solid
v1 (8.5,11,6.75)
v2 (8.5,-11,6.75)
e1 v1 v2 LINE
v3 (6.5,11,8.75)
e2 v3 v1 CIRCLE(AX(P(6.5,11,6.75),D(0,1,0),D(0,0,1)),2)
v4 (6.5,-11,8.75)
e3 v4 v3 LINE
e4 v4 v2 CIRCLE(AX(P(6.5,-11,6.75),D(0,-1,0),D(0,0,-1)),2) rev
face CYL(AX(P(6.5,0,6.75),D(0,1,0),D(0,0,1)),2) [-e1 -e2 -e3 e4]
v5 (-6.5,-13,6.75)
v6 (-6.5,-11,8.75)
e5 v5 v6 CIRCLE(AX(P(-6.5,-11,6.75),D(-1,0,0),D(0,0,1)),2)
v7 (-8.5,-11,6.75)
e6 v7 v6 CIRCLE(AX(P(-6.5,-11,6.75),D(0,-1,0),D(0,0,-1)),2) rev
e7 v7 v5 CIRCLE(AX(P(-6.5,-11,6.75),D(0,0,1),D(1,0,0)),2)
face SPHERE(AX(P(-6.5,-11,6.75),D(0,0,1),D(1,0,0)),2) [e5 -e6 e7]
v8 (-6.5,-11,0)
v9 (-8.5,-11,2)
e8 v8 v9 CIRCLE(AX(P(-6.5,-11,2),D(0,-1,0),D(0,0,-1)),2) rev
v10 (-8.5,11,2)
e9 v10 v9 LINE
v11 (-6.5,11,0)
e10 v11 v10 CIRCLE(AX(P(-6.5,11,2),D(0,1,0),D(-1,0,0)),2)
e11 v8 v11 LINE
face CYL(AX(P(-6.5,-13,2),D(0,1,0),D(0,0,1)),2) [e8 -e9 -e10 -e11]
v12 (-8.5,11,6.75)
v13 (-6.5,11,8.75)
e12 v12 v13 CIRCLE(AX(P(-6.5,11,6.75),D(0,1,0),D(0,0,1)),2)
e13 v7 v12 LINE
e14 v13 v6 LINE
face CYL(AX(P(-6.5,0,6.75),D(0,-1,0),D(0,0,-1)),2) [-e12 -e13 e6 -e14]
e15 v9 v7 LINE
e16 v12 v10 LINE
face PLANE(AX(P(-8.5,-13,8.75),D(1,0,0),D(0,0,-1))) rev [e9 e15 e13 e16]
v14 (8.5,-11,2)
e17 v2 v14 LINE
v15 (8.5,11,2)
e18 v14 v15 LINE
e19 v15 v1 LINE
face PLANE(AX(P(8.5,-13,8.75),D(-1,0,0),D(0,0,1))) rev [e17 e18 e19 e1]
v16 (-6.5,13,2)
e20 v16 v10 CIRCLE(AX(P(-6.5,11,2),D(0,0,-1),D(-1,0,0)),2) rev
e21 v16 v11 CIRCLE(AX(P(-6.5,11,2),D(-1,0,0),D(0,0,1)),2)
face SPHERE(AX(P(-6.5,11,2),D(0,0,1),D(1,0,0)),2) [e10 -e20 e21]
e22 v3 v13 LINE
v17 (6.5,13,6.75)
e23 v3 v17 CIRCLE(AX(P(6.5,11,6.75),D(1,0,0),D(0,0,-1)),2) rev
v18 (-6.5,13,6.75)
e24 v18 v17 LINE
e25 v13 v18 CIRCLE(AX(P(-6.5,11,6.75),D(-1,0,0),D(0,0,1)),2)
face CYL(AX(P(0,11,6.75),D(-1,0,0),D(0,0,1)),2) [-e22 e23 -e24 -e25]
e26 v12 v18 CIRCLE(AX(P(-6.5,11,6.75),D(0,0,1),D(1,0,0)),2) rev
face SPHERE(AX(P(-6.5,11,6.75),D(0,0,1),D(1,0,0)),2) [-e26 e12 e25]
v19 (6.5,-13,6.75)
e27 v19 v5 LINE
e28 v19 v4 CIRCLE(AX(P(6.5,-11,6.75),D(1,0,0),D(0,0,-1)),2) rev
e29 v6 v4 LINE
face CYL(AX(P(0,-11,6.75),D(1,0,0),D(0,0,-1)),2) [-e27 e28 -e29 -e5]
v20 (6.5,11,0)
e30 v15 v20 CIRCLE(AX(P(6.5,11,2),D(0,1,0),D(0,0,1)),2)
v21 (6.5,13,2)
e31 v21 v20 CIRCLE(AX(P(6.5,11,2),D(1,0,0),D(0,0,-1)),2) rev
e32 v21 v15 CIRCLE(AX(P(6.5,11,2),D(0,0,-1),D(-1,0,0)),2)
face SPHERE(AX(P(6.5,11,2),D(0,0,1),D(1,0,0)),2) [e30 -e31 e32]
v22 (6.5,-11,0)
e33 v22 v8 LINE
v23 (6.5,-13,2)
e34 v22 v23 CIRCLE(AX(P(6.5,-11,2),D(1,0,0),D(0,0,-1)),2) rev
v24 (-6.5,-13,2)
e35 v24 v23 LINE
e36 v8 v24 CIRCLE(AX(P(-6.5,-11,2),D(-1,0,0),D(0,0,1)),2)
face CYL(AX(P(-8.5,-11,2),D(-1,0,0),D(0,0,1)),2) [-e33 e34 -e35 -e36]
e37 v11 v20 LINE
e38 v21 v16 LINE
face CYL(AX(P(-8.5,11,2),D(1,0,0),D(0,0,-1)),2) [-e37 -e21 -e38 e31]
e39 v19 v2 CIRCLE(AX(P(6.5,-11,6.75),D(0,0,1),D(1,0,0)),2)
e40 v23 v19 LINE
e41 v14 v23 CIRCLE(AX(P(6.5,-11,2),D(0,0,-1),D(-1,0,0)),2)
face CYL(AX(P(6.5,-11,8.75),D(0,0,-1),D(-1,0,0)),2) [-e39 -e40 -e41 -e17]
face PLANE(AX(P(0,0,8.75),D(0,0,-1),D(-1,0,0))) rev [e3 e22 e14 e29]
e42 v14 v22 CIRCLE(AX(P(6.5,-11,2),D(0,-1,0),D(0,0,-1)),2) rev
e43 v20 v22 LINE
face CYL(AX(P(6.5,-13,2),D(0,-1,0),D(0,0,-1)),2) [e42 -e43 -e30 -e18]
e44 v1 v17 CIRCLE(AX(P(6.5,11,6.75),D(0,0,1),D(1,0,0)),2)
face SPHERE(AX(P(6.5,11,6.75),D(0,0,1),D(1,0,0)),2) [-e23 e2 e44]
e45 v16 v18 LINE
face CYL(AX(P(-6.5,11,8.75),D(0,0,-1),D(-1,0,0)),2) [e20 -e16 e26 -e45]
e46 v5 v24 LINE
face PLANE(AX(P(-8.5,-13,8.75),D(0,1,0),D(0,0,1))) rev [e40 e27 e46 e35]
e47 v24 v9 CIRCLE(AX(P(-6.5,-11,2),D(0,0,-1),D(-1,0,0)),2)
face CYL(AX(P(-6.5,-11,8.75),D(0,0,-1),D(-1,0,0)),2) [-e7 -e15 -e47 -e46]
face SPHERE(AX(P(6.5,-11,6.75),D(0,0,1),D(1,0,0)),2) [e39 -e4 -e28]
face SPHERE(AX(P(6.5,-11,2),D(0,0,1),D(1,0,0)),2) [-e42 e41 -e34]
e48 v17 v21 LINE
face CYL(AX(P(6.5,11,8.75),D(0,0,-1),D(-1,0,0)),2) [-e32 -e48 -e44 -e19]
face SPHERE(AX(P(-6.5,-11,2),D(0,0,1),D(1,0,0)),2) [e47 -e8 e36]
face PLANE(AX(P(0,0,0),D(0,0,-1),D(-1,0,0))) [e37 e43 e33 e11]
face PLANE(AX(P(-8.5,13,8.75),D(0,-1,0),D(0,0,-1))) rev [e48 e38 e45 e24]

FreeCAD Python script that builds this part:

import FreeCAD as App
import Part
import Sketcher

doc = App.newDocument("Part")
body = doc.addObject("PartDesign::Body", "Body")

# Sketch on XY plane
sketch1 = body.newObject("Sketcher::SketchObject", "Sketch")
sketch1.AttachmentSupport = (doc.getObject("XY_Plane"), [""])
sketch1.MapMode = "FlatFace"
sketch1.addGeometry([
    Part.LineSegment(App.Vector(-8.5, 13, 0), App.Vector(-8.5, -13, 0)),
    Part.LineSegment(App.Vector(-8.5, -13, 0), App.Vector(8.5, -13, 0)),
    Part.LineSegment(App.Vector(8.5, -13, 0), App.Vector(8.5, 13, 0)),
    Part.LineSegment(App.Vector(8.5, 13, 0), App.Vector(-8.5, 13, 0)),
], False)
sketch1.addConstraint([
    Sketcher.Constraint("Coincident", 0, 2, 1, 1),
    Sketcher.Constraint("Coincident", 1, 2, 2, 1),
    Sketcher.Constraint("Coincident", 2, 2, 3, 1),
    Sketcher.Constraint("Coincident", 3, 2, 0, 1),
    Sketcher.Constraint("Vertical", 0),
    Sketcher.Constraint("Horizontal", 1),
    Sketcher.Constraint("Vertical", 2),
    Sketcher.Constraint("Horizontal", 3),
    Sketcher.Constraint("Symmetric", 0, 2, 2, 2, -1, 1),
    Sketcher.Constraint("DistanceX", 1, 1, 1, 2, 17.0),
    Sketcher.Constraint("DistanceY", 0, 2, 0, 1, 26.0),
])
pad1 = body.newObject("PartDesign::Pad", "Pad")
pad1.Profile = sketch1
pad1.Length = 8.75
doc.recompute()

fillet = body.newObject("PartDesign::Fillet", "Fillet")
fillet.Base = (pad1, ["Edge1"])
fillet.UseAllEdges = True
fillet.Radius = 2

doc.recompute()
